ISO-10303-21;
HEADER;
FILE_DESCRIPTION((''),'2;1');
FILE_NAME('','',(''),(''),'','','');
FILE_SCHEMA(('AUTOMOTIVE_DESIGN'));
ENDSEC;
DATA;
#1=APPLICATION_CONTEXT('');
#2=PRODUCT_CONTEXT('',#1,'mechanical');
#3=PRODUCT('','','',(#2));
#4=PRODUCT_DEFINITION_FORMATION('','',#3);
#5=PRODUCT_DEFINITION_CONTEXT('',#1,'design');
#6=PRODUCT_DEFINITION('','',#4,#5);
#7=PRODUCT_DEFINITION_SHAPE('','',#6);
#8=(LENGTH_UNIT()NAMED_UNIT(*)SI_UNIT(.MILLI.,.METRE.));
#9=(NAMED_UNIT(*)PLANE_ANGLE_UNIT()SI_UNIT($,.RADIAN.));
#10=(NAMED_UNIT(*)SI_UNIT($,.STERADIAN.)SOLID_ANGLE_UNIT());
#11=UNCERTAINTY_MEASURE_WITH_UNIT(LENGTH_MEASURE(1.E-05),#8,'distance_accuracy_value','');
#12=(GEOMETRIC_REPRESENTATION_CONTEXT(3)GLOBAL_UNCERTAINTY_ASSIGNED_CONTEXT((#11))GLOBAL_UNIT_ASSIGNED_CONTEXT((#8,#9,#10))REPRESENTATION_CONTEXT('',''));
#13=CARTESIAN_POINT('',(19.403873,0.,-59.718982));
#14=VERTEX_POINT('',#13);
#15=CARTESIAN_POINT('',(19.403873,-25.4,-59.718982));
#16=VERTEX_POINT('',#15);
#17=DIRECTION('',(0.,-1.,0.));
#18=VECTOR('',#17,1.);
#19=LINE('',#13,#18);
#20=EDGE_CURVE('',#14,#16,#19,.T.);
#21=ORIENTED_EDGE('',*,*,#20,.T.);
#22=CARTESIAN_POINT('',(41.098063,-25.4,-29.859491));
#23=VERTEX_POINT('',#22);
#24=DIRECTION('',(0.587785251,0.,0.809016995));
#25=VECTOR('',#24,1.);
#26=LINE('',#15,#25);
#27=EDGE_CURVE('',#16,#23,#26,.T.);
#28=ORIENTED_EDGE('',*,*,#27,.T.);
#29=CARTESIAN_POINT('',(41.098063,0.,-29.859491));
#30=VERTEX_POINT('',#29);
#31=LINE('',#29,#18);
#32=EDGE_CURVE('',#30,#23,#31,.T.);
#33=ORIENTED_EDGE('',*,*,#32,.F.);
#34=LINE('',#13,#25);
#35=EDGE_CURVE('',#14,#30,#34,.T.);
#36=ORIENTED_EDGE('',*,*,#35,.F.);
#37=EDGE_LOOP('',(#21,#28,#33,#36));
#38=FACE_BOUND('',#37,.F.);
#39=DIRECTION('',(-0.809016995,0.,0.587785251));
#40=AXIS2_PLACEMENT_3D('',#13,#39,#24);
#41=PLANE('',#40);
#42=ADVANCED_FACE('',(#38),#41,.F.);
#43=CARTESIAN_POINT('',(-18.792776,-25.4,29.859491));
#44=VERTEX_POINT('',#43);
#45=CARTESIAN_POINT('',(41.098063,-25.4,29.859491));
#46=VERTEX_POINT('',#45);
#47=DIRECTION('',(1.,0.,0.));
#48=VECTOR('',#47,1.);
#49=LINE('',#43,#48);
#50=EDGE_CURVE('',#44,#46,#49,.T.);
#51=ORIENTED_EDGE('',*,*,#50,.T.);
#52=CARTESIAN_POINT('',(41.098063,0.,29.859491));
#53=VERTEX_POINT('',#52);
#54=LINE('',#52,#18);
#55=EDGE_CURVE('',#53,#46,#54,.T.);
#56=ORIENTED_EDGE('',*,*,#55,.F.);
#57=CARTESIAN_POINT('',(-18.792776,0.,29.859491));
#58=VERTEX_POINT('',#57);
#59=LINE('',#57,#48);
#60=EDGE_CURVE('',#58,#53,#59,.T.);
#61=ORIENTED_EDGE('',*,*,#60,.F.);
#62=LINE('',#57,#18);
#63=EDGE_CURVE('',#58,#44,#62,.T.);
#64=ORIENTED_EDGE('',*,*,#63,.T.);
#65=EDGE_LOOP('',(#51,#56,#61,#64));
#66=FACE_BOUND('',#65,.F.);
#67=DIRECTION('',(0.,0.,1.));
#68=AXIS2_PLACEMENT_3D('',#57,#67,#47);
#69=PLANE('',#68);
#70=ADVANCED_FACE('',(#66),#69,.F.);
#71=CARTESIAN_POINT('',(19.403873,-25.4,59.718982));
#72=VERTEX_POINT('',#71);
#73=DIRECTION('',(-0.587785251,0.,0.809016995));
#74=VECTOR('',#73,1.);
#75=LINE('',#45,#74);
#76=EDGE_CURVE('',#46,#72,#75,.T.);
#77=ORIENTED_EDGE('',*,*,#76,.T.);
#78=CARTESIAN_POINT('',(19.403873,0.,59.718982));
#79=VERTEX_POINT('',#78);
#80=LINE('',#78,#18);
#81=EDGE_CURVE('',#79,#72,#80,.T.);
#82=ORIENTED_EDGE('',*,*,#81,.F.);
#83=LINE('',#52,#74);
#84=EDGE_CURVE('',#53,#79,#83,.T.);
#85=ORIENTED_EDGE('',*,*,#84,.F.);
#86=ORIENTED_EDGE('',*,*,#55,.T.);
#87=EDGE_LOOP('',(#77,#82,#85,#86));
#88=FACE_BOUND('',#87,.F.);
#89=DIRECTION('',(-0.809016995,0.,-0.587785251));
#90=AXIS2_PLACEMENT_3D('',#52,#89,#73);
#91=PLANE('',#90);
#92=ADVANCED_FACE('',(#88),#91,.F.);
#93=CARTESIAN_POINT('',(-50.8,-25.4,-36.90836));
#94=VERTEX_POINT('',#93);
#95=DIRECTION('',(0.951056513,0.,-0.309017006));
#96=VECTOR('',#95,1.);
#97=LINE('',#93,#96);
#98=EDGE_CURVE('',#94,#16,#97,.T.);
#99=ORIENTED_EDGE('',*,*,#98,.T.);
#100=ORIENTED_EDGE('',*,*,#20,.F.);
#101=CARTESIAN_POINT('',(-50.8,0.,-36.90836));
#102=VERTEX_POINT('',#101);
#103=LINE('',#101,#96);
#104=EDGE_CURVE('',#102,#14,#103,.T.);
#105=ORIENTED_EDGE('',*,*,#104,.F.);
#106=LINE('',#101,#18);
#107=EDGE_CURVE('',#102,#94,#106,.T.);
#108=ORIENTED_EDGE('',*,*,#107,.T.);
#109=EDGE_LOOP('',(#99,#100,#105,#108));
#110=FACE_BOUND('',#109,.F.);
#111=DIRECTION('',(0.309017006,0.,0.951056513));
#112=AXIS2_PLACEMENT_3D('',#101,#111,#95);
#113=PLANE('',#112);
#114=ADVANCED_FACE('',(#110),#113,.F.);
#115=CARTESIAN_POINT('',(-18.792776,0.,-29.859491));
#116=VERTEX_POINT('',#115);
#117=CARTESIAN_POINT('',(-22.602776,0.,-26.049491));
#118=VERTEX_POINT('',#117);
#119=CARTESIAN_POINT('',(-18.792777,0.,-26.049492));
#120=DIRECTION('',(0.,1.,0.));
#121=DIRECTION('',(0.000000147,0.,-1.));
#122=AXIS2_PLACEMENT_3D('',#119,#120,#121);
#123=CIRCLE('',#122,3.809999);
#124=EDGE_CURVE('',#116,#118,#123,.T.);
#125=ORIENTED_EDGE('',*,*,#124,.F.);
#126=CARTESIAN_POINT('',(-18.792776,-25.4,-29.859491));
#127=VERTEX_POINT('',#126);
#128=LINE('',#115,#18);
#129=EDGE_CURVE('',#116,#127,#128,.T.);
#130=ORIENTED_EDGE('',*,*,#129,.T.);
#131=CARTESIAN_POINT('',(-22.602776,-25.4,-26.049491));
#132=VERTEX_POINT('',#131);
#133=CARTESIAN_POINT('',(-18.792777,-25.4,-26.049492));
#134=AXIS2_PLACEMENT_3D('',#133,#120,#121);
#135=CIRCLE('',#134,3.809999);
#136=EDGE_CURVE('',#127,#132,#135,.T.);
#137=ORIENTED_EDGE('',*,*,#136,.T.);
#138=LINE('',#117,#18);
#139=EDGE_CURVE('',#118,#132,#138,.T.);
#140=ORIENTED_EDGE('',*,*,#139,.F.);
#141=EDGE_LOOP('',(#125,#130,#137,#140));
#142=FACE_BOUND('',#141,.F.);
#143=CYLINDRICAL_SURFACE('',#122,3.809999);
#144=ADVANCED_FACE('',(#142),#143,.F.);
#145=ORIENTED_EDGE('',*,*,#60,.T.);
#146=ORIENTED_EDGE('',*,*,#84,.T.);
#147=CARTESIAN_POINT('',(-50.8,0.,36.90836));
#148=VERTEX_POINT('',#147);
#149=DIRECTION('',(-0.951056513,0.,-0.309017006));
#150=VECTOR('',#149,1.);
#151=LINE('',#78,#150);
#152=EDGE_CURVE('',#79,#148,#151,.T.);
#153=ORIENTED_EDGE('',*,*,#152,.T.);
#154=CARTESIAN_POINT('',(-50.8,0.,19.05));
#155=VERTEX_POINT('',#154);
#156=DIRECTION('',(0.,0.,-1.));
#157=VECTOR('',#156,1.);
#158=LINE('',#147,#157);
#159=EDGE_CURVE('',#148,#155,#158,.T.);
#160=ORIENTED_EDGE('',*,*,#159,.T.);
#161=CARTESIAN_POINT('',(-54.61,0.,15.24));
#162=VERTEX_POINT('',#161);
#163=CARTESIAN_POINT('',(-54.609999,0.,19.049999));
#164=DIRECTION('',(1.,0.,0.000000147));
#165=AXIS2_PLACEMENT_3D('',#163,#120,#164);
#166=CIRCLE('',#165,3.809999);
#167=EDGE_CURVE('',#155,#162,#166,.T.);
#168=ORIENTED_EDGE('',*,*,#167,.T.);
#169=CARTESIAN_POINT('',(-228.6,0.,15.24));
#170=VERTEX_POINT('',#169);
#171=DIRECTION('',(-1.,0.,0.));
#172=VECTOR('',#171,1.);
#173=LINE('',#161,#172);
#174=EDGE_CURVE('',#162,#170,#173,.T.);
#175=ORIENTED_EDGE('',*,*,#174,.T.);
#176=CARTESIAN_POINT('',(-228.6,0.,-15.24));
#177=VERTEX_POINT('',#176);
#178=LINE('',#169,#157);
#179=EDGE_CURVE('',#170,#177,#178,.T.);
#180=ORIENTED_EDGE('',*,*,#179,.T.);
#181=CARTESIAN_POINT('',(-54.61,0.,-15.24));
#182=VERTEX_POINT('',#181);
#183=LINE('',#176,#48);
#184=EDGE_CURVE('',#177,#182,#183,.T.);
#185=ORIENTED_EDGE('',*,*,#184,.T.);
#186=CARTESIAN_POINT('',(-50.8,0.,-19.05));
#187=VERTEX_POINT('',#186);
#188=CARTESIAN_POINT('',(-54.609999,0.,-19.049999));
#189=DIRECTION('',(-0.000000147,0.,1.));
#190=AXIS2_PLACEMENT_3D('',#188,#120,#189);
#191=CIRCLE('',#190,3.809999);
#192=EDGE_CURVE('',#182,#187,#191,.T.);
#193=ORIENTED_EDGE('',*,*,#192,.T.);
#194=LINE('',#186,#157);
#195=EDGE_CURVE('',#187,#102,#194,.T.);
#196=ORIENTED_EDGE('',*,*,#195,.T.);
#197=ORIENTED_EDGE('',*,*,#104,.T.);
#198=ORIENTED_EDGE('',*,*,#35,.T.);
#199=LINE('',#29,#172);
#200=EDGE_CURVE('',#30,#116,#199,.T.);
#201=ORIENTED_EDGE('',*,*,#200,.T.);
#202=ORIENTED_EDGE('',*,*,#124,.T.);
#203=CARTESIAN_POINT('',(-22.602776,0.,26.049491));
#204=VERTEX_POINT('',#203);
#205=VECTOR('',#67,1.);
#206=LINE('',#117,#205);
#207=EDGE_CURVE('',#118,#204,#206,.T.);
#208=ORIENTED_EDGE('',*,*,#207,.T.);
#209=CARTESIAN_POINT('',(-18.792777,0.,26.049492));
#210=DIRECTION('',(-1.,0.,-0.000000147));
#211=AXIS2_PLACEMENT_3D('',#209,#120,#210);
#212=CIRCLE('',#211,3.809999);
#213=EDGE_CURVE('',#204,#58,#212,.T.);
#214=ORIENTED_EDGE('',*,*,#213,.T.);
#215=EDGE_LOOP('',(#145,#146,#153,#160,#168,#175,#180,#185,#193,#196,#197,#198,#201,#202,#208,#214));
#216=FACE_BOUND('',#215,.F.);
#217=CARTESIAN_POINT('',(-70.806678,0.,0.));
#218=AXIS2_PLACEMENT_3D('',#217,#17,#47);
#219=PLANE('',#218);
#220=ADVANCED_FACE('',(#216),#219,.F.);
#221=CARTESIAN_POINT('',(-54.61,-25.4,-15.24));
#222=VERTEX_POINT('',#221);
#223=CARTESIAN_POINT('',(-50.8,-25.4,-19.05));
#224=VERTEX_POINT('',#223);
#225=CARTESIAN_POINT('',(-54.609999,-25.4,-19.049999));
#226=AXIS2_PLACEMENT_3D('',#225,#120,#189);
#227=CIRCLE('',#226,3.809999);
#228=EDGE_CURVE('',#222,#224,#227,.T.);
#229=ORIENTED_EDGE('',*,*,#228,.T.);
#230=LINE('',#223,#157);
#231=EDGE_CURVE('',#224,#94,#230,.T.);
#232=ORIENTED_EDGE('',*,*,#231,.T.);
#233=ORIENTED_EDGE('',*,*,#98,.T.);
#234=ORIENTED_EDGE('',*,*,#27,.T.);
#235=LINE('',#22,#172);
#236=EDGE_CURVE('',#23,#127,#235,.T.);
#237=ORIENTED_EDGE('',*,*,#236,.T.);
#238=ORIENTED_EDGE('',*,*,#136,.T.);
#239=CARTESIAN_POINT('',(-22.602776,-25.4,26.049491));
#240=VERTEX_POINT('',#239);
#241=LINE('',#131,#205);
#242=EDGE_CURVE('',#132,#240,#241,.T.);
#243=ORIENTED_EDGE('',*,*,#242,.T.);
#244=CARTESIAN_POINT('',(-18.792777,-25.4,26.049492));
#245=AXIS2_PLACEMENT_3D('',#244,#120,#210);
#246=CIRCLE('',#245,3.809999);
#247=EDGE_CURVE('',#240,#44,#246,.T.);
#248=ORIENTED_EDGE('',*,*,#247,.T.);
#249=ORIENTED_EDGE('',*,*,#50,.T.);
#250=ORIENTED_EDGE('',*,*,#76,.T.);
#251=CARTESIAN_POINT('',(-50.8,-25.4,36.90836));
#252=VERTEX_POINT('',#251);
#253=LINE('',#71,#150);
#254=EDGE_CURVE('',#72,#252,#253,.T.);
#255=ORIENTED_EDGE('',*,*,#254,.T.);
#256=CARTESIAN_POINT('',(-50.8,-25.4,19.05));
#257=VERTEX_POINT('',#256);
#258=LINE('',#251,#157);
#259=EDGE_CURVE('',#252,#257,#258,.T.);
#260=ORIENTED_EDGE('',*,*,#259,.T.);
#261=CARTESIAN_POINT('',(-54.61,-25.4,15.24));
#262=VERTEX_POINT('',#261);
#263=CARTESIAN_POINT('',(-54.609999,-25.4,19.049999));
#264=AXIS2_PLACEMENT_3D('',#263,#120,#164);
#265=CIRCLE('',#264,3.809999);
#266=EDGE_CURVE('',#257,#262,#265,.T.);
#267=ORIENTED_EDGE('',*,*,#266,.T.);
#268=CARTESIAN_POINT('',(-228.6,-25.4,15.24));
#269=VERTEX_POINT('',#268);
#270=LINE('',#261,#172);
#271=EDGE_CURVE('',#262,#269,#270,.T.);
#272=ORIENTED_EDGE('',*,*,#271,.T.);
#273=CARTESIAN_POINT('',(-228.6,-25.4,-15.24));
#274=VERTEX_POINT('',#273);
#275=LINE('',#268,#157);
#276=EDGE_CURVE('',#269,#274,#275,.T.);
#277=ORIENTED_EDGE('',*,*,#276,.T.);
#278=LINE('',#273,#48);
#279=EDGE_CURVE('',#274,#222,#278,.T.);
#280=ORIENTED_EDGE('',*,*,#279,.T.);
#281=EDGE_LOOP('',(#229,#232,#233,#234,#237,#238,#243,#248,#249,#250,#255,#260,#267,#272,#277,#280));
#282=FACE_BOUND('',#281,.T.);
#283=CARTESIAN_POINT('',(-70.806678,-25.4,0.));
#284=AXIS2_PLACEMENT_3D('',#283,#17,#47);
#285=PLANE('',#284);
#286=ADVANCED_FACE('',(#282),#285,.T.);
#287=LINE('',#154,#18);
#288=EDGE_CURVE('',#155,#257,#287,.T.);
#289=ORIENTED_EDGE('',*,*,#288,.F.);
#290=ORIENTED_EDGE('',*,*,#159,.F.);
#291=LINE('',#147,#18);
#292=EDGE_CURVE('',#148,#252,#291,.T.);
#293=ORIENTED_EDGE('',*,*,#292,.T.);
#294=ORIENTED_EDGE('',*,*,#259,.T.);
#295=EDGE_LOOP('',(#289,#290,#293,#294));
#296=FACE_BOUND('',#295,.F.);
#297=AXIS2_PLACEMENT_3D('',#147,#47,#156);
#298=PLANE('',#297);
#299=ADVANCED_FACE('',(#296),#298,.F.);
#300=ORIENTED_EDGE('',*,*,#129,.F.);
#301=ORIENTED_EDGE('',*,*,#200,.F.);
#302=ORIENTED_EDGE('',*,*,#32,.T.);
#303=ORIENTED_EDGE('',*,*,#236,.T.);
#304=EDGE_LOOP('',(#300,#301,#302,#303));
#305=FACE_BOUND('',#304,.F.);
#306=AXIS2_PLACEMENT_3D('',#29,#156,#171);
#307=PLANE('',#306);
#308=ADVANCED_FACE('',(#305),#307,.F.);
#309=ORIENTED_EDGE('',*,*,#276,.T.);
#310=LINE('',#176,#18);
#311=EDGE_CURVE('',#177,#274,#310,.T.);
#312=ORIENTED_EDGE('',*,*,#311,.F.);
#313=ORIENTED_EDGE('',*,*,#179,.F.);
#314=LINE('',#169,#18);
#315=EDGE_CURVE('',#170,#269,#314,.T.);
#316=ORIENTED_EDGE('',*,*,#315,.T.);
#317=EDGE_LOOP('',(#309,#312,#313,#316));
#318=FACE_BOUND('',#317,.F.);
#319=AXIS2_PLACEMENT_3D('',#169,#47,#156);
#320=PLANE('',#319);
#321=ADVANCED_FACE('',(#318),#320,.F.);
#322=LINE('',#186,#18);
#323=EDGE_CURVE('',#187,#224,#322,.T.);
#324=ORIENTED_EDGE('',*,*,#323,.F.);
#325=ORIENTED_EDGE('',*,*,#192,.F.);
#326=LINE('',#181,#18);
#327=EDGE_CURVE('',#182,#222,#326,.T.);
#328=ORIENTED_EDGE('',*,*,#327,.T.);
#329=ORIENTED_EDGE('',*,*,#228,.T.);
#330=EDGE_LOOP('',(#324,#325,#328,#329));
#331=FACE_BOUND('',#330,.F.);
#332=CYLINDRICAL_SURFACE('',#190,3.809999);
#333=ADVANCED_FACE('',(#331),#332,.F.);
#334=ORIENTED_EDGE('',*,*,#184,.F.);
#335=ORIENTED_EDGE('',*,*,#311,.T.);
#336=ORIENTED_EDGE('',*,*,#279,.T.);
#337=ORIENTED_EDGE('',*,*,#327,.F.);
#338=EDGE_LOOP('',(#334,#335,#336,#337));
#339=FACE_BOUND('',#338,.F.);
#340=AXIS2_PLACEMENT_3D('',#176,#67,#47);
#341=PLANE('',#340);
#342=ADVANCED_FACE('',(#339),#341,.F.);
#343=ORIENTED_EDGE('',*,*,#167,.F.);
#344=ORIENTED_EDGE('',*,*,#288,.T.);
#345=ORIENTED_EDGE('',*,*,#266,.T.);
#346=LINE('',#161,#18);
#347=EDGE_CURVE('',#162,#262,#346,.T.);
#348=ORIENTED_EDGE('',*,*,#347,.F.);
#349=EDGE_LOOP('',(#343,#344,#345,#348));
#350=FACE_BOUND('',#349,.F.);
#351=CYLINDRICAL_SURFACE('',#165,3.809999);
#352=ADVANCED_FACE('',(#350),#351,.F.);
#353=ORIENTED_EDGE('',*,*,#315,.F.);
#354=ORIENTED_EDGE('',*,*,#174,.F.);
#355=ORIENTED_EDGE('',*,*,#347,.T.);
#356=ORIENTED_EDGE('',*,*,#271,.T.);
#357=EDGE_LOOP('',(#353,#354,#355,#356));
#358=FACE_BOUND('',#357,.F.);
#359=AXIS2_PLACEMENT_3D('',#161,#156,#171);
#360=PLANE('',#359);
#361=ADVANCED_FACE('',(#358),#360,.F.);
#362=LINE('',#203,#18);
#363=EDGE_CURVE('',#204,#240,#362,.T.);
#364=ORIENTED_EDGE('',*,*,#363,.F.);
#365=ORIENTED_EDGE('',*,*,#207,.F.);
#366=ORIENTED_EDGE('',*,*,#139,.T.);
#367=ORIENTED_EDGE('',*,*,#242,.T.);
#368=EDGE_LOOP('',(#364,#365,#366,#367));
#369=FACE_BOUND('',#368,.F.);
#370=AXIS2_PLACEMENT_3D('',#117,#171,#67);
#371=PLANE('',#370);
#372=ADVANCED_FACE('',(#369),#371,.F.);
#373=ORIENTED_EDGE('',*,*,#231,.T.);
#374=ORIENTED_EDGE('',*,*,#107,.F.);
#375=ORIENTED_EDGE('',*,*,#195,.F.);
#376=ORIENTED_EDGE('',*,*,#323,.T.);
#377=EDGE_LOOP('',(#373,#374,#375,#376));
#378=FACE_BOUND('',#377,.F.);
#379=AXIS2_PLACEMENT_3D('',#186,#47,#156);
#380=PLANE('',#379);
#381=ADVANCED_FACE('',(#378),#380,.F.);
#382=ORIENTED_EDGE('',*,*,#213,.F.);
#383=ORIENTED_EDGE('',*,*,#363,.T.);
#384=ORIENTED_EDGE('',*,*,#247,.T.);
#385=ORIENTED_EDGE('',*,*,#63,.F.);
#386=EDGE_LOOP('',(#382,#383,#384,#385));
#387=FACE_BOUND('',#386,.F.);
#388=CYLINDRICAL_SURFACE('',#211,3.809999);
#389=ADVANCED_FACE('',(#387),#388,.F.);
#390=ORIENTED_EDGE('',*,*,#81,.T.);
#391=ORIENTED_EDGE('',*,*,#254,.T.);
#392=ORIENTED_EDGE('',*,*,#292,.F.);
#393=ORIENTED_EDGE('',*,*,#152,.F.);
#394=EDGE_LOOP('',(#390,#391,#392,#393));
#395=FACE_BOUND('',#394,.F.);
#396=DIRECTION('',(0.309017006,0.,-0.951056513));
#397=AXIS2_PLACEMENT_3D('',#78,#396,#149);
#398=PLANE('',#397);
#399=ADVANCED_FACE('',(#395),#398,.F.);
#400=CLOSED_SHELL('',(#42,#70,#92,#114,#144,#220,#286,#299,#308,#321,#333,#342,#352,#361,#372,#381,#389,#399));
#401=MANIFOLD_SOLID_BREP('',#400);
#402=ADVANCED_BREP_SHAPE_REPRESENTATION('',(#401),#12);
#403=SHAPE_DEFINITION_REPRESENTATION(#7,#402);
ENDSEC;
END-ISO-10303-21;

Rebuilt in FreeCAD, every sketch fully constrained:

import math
import FreeCAD as App
import Part
import Sketcher
from FreeCAD import Vector
Q = App.Units.Quantity

doc = App.newDocument("Part")
body = doc.addObject("PartDesign::Body", "Body")

sketch1 = body.newObject("Sketcher::SketchObject", "Sketch")
sketch1.AttachmentSupport = (doc.getObject("XZ_Plane"), [""])
sketch1.MapMode = "FlatFace"
sketch1.addGeometry(Part.LineSegment(Vector(-50.8, 36.9, 0), Vector(-50.8, 19.1, 0)), False)
sketch1.addGeometry(Part.ArcOfCircle(Part.Circle(Vector(-54.6, 19, 0), Vector(0, 0, 1), 3.8), math.radians(-90), math.radians(0)), False)
sketch1.addGeometry(Part.LineSegment(Vector(-54.6, 15.2, 0), Vector(-228.6, 15.2, 0)), False)
sketch1.addGeometry(Part.LineSegment(Vector(-228.6, 15.2, 0), Vector(-228.6, -15.2, 0)), False)
sketch1.addGeometry(Part.LineSegment(Vector(-228.6, -15.2, 0), Vector(-54.6, -15.2, 0)), False)
sketch1.addGeometry(Part.ArcOfCircle(Part.Circle(Vector(-54.6, -19, 0), Vector(0, 0, 1), 3.8), math.radians(0), math.radians(90)), False)
sketch1.addGeometry(Part.LineSegment(Vector(-50.8, -19.1, 0), Vector(-50.8, -36.9, 0)), False)
sketch1.addGeometry(Part.LineSegment(Vector(-50.8, -36.9, 0), Vector(19.4, -59.7, 0)), False)
sketch1.addGeometry(Part.LineSegment(Vector(19.4, -59.7, 0), Vector(41.1, -29.9, 0)), False)
sketch1.addGeometry(Part.LineSegment(Vector(41.1, -29.9, 0), Vector(-18.8, -29.9, 0)), False)
sketch1.addGeometry(Part.ArcOfCircle(Part.Circle(Vector(-18.8, -26, 0), Vector(0, 0, 1), 3.8), math.radians(180), math.radians(270)), False)
sketch1.addGeometry(Part.LineSegment(Vector(-22.6, -26, 0), Vector(-22.6, 26, 0)), False)
sketch1.addGeometry(Part.ArcOfCircle(Part.Circle(Vector(-18.8, 26, 0), Vector(0, 0, 1), 3.8), math.radians(90), math.radians(180)), False)
sketch1.addGeometry(Part.LineSegment(Vector(-18.8, 29.9, 0), Vector(41.1, 29.9, 0)), False)
sketch1.addGeometry(Part.LineSegment(Vector(41.1, 29.9, 0), Vector(19.4, 59.7, 0)), False)
sketch1.addGeometry(Part.LineSegment(Vector(19.4, 59.7, 0), Vector(-50.8, 36.9, 0)), False)
sketch1.addConstraint(Sketcher.Constraint("Tangent", 0, 2, 1, 2))
sketch1.addConstraint(Sketcher.Constraint("Tangent", 1, 1, 2, 1))
sketch1.addConstraint(Sketcher.Constraint("Coincident", 2, 2, 3, 1))
sketch1.addConstraint(Sketcher.Constraint("Coincident", 3, 2, 4, 1))
sketch1.addConstraint(Sketcher.Constraint("Tangent", 4, 2, 5, 2))
sketch1.addConstraint(Sketcher.Constraint("Tangent", 5, 1, 6, 1))
sketch1.addConstraint(Sketcher.Constraint("Coincident", 6, 2, 7, 1))
sketch1.addConstraint(Sketcher.Constraint("Coincident", 7, 2, 8, 1))
sketch1.addConstraint(Sketcher.Constraint("Coincident", 8, 2, 9, 1))
sketch1.addConstraint(Sketcher.Constraint("Tangent", 9, 2, 10, 2))
sketch1.addConstraint(Sketcher.Constraint("Tangent", 10, 1, 11, 1))
sketch1.addConstraint(Sketcher.Constraint("Tangent", 11, 2, 12, 2))
sketch1.addConstraint(Sketcher.Constraint("Tangent", 12, 1, 13, 1))
sketch1.addConstraint(Sketcher.Constraint("Coincident", 13, 2, 14, 1))
sketch1.addConstraint(Sketcher.Constraint("Coincident", 14, 2, 15, 1))
sketch1.addConstraint(Sketcher.Constraint("Coincident", 15, 2, 0, 1))
sketch1.addConstraint(Sketcher.Constraint("Vertical", 0))
sketch1.addConstraint(Sketcher.Constraint("Horizontal", 2))
sketch1.addConstraint(Sketcher.Constraint("Vertical", 3))
sketch1.addConstraint(Sketcher.Constraint("Horizontal", 4))
sketch1.addConstraint(Sketcher.Constraint("Vertical", 6))
sketch1.addConstraint(Sketcher.Constraint("Horizontal", 9))
sketch1.addConstraint(Sketcher.Constraint("Vertical", 11))
sketch1.addConstraint(Sketcher.Constraint("Horizontal", 13))
sketch1.addConstraint(Sketcher.Constraint("Equal", 1, 5))
sketch1.addConstraint(Sketcher.Constraint("Equal", 5, 10))
sketch1.addConstraint(Sketcher.Constraint("Equal", 10, 12))
sketch1.addConstraint(Sketcher.Constraint("Symmetric", 1, 3, 5, 3, -1))
sketch1.addConstraint(Sketcher.Constraint("Symmetric", 8, 2, 13, 2, -1))
sketch1.addConstraint(Sketcher.Constraint("Symmetric", 7, 2, 14, 2, -1))
sketch1.addConstraint(Sketcher.Constraint("Equal", 0, 6))
sketch1.addConstraint(Sketcher.Constraint("Radius", 1, Q("0.15 in")))
sketch1.addConstraint(Sketcher.Constraint("DistanceY", 3, 2, 3, 1, Q("1.2 in")))
sketch1.addConstraint(Sketcher.Constraint("DistanceX", 0, 2, -1, 1, Q("2 in")))
sketch1.addConstraint(Sketcher.Constraint("DistanceX", 2, 2, -1, 1, Q("9 in")))
sketch1.addConstraint(Sketcher.Constraint("Angle", 7, Q("-18.000001 deg")))
sketch1.addConstraint(Sketcher.Constraint("Angle", 8, Q("54 deg")))
sketch1.addConstraint(Sketcher.Constraint("DistanceX", 9, 2, 9, 1, 59.890839))
sketch1.addConstraint(Sketcher.Constraint("DistanceY", 0, 2, 0, 1, 17.85836))
sketch1.addConstraint(Sketcher.Constraint("Distance", 7, 73.816721))
sketch1.addConstraint(Sketcher.Constraint("Distance", 8, 36.908361))
pad1 = body.newObject("PartDesign::Pad", "Pad")
pad1.Profile = sketch1
pad1.Length = Q("1 in")

doc.recompute()
